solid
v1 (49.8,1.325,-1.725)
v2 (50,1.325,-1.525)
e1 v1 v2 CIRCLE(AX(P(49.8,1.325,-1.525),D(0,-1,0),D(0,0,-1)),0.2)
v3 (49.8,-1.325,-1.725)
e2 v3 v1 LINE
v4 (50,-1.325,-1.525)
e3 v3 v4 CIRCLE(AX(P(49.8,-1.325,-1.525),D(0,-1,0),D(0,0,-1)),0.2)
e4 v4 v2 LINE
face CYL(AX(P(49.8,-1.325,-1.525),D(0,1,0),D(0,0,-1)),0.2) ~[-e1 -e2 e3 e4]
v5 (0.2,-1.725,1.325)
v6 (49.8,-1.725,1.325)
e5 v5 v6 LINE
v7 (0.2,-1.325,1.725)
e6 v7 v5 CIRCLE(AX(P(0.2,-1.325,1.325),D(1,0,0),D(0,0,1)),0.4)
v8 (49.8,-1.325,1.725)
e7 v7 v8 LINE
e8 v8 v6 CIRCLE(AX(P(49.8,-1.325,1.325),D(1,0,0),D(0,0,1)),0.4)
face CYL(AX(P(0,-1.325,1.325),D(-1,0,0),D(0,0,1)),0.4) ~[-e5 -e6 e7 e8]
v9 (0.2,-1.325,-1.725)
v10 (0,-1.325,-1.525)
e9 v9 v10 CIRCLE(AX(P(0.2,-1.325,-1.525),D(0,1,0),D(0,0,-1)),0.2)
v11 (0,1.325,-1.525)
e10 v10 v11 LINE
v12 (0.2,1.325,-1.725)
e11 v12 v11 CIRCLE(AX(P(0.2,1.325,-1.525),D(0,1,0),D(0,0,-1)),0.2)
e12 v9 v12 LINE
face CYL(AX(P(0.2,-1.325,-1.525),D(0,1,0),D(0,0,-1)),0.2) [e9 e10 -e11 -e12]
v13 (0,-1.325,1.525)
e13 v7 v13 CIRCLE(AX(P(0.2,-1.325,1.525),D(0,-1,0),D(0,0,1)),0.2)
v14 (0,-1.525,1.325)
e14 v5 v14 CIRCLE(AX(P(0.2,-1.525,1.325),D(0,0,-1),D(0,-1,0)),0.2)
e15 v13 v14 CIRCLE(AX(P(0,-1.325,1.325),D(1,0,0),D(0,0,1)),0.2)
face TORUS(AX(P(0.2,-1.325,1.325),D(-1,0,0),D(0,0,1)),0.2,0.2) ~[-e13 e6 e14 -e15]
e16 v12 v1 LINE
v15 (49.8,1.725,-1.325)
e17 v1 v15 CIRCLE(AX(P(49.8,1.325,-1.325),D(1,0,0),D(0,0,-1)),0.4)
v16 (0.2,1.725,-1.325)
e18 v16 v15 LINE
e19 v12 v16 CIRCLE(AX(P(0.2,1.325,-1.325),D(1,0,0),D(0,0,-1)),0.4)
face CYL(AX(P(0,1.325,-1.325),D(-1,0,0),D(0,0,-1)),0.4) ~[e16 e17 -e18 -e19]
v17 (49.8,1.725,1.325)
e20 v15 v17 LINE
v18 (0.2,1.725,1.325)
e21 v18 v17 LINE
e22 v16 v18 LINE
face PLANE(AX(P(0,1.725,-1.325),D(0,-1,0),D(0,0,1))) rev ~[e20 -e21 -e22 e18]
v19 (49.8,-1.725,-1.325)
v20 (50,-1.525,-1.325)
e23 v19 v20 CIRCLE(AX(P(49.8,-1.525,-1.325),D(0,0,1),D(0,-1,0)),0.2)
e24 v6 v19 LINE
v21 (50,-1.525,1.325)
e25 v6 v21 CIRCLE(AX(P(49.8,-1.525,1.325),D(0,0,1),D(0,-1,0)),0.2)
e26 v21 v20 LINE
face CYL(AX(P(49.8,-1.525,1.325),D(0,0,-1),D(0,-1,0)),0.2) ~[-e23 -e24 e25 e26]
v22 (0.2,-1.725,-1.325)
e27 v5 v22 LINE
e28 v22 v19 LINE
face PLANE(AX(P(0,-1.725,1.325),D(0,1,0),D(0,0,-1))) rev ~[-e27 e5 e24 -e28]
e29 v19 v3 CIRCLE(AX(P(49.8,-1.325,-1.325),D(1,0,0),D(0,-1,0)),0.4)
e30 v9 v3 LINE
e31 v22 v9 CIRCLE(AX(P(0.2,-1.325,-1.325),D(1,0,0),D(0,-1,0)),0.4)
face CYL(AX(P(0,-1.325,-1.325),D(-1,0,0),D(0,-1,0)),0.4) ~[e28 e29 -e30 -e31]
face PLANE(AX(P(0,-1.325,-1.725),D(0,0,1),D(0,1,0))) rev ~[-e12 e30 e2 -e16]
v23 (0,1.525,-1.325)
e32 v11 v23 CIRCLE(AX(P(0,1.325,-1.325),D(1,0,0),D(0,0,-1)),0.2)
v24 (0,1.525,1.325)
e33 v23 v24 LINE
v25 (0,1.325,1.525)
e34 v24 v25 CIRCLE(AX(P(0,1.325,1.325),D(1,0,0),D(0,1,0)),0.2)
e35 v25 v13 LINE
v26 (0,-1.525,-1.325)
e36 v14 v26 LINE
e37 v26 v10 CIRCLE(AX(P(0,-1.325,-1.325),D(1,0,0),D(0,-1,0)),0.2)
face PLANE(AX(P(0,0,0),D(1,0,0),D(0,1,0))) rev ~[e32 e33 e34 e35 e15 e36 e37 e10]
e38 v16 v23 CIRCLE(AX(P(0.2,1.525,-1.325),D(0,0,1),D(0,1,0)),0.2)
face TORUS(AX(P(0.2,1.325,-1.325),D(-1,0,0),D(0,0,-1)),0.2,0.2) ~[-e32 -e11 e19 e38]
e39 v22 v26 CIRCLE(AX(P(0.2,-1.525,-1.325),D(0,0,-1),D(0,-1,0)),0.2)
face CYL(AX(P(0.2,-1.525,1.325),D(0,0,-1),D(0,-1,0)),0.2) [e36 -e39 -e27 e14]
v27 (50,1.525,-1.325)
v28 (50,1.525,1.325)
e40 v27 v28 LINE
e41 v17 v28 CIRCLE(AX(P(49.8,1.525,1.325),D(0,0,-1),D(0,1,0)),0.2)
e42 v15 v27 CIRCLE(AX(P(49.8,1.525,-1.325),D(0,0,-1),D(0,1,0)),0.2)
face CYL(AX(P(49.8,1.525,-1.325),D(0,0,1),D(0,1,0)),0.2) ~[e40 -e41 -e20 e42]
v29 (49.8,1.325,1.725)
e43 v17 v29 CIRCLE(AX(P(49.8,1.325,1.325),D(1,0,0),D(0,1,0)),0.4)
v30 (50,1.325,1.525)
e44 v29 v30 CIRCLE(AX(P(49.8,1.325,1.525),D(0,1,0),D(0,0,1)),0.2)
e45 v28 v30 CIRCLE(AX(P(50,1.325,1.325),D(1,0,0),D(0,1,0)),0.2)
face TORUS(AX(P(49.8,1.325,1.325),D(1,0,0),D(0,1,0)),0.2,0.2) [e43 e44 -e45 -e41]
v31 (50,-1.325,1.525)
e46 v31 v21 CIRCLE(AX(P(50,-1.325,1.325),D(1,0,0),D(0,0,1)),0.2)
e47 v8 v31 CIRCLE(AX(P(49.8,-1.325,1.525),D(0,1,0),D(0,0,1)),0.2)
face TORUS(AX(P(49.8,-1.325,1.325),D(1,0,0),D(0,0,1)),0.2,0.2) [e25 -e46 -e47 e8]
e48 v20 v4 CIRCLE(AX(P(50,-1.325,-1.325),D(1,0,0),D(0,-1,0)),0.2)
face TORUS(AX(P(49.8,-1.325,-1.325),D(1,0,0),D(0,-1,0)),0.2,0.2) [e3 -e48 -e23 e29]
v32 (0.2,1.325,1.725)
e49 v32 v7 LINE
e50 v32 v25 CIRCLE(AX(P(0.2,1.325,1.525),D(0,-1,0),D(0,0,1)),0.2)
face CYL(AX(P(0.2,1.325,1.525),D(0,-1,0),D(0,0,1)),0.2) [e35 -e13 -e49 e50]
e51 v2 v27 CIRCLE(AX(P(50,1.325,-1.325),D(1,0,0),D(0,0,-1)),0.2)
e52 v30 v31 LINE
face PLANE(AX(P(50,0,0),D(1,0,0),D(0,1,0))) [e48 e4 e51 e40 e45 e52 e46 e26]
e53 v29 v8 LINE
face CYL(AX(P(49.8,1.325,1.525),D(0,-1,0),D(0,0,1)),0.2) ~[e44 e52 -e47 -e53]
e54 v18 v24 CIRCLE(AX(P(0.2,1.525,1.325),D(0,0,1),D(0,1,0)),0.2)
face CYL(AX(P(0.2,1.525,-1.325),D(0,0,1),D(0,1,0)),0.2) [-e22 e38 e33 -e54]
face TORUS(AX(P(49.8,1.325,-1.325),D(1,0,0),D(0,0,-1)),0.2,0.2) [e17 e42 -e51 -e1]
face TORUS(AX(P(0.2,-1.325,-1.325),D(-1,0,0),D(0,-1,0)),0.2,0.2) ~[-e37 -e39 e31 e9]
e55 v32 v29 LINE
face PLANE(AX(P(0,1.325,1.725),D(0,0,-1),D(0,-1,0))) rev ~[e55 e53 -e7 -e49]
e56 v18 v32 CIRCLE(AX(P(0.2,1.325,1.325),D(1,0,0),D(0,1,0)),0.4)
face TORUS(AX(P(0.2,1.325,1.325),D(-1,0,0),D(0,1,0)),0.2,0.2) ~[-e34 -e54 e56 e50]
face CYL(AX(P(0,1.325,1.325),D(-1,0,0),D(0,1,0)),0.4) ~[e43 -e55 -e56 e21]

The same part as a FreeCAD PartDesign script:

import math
import FreeCAD as App
import Part
import Sketcher
from FreeCAD import Vector


def edges_at(feature, points):
    """Names of the edges that pass closest to the given points."""
    edges = feature.Shape.Edges
    near = lambda p: min(range(len(edges)), key=lambda i: edges[i].distToShape(Part.Vertex(*p))[0])
    return sorted({f"Edge{near(p) + 1}" for p in points})

doc = App.newDocument("Part")
body = doc.addObject("PartDesign::Body", "Body")

sketch1 = doc.addObject("Sketcher::SketchObject", "Sketch")
body.addObject(sketch1)
sketch1.AttachmentSupport = (doc.YZ_Plane, [""])
sketch1.MapMode = "FlatFace"
sketch1.addGeometry(Part.ArcOfCircle(Part.Circle(Vector(1.32, 1.32, 0), Vector(0, 0, 1), 0.4), math.radians(0), math.radians(90)), False)
sketch1.addGeometry(Part.LineSegment(Vector(1.32, 1.73, 0), Vector(-1.32, 1.73, 0)), False)
sketch1.addGeometry(Part.ArcOfCircle(Part.Circle(Vector(-1.32, 1.32, 0), Vector(0, 0, 1), 0.4), math.radians(90), math.radians(180)), False)
sketch1.addGeometry(Part.LineSegment(Vector(-1.73, 1.32, 0), Vector(-1.73, -1.32, 0)), False)
sketch1.addGeometry(Part.ArcOfCircle(Part.Circle(Vector(-1.32, -1.32, 0), Vector(0, 0, 1), 0.4), math.radians(180), math.radians(270)), False)
sketch1.addGeometry(Part.LineSegment(Vector(-1.32, -1.73, 0), Vector(1.32, -1.73, 0)), False)
sketch1.addGeometry(Part.ArcOfCircle(Part.Circle(Vector(1.32, -1.32, 0), Vector(0, 0, 1), 0.4), math.radians(-90), math.radians(0)), False)
sketch1.addGeometry(Part.LineSegment(Vector(1.73, -1.32, 0), Vector(1.73, 1.32, 0)), False)
sketch1.addConstraint(Sketcher.Constraint("Tangent", 0, 2, 1, 1))
sketch1.addConstraint(Sketcher.Constraint("Tangent", 1, 2, 2, 1))
sketch1.addConstraint(Sketcher.Constraint("Tangent", 2, 2, 3, 1))
sketch1.addConstraint(Sketcher.Constraint("Tangent", 3, 2, 4, 1))
sketch1.addConstraint(Sketcher.Constraint("Tangent", 4, 2, 5, 1))
sketch1.addConstraint(Sketcher.Constraint("Tangent", 5, 2, 6, 1))
sketch1.addConstraint(Sketcher.Constraint("Tangent", 6, 2, 7, 1))
sketch1.addConstraint(Sketcher.Constraint("Tangent", 7, 2, 0, 1))
sketch1.addConstraint(Sketcher.Constraint("Horizontal", 1))
sketch1.addConstraint(Sketcher.Constraint("Vertical", 3))
sketch1.addConstraint(Sketcher.Constraint("Horizontal", 5))
sketch1.addConstraint(Sketcher.Constraint("Vertical", 7))
sketch1.addConstraint(Sketcher.Constraint("Equal", 0, 2))
sketch1.addConstraint(Sketcher.Constraint("Equal", 2, 4))
sketch1.addConstraint(Sketcher.Constraint("Equal", 4, 6))
sketch1.addConstraint(Sketcher.Constraint("Symmetric", 0, 3, 4, 3, -1, 1))
sketch1.addConstraint(Sketcher.Constraint("Equal", 5, 3))
sketch1.addConstraint(Sketcher.Constraint("Radius", 0, 0.4))
sketch1.addConstraint(Sketcher.Constraint("DistanceX", 1, 2, 1, 1, 2.65))
pad1 = doc.addObject("PartDesign::Pad", "Pad")
body.addObject(pad1)
pad1.Profile = sketch1
pad1.Length = 50
doc.recompute()

fillet = doc.addObject("PartDesign::Fillet", "Fillet")
body.addObject(fillet)
fillet.Base = (pad1, edges_at(pad1, [
    (50, 1.608, 1.608),
    (50, 0, 1.725),
    (50, -1.608, 1.608),
    (50, -1.725, 0),
    (50, -1.608, -1.608),
    (50, 0, -1.725),
    (50, 1.608, -1.608),
    (50, 1.725, 0),
    (0, 1.608, 1.608),
    (0, 0, 1.725),
    (0, -1.608, 1.608),
    (0, -1.725, 0),
    (0, -1.608, -1.608),
    (0, 0, -1.725),
    (0, 1.608, -1.608),
    (0, 1.725, 0),
]))
fillet.Radius = 0.2

doc.recompute()
